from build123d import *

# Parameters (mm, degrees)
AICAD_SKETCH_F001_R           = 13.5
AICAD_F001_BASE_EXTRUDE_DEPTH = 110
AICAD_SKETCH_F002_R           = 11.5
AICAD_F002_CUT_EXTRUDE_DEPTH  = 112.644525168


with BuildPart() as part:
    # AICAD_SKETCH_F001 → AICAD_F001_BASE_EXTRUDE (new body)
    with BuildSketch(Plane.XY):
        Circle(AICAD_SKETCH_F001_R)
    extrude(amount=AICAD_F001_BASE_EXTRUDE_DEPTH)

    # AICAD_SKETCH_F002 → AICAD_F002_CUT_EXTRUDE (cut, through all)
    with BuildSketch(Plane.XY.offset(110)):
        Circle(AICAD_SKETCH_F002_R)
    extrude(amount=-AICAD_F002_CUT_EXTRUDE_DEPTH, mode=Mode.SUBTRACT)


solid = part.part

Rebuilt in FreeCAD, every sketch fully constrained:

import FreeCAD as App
import Part
import Sketcher

V = App.Vector

doc = App.newDocument("Part")
body = doc.addObject("PartDesign::Body", "Body")

# Sketch on XY plane
sketch1 = body.newObject("Sketcher::SketchObject", "Sketch")
sketch1.AttachmentSupport = (doc.getObject("XY_Plane"), [""])
sketch1.MapMode = "FlatFace"
sketch1.addGeometry(Part.Circle(V(0, 0, 0), V(0, 0, 1), 14), False)
sketch1.addConstraint([
    Sketcher.Constraint("Coincident", 0, 3, -1, 1),
    Sketcher.Constraint("Diameter", 0, 27.0),
])
pad1 = body.newObject("PartDesign::Pad", "Pad")
pad1.Profile = sketch1
pad1.Length = 110

# Sketch on XY plane
sketch2 = body.newObject("Sketcher::SketchObject", "Sketch001")
sketch2.AttachmentSupport = (doc.getObject("XY_Plane"), [""])
sketch2.MapMode = "FlatFace"
sketch2.AttachmentOffset = App.Placement(V(0, 0, 110), App.Rotation())
sketch2.addGeometry(Part.Circle(V(0, 0, 0), V(0, 0, 1), 12), False)
sketch2.addConstraint([
    Sketcher.Constraint("Coincident", 0, 3, -1, 1),
    Sketcher.Constraint("Diameter", 0, 23.0),
])
pocket1 = body.newObject("PartDesign::Pocket", "Pocket")
pocket1.Profile = sketch2
pocket1.Type = "ThroughAll"

doc.recompute()
